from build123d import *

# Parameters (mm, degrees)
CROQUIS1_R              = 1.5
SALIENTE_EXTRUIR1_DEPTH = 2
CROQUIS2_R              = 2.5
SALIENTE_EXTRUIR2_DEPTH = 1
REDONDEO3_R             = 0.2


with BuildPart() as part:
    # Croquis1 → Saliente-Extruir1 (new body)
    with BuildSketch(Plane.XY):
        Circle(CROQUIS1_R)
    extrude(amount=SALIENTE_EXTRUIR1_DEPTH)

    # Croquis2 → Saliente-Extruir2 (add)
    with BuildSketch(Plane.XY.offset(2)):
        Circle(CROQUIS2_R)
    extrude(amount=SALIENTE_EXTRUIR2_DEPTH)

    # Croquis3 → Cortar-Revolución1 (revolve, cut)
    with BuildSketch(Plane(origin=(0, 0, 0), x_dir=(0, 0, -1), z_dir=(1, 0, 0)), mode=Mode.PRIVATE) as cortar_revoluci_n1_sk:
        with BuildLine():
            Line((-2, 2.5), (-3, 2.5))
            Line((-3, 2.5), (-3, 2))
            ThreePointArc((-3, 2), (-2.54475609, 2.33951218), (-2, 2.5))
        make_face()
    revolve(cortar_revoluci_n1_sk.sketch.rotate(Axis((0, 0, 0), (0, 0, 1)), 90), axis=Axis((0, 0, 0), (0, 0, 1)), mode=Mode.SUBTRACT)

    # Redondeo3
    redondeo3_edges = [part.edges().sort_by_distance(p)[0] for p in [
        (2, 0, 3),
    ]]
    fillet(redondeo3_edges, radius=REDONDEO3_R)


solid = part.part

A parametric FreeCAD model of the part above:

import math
import FreeCAD as App
import Part
import Sketcher


def edges_at(feature, points):
    """Names of the edges that pass closest to the given points."""
    edges = feature.Shape.Edges
    near = lambda p: min(range(len(edges)), key=lambda i: edges[i].distToShape(Part.Vertex(*p))[0])
    return sorted({f"Edge{near(p) + 1}" for p in points})

doc = App.newDocument("Part")
body = doc.addObject("PartDesign::Body", "Body")

# Sketch on XY plane
sketch1 = doc.addObject("Sketcher::SketchObject", "Sketch")
body.addObject(sketch1)
sketch1.AttachmentSupport = (doc.XY_Plane, [""])
sketch1.MapMode = "FlatFace"
sketch1.addGeometry(Part.Circle(App.Vector(0, 0, 0), App.Vector(0, 0, 1), 1.5), False)
sketch1.addConstraint([
    Sketcher.Constraint("Coincident", 0, 3, -1, 1),
    Sketcher.Constraint("Diameter", 0, 3.0),
])
pad1 = doc.addObject("PartDesign::Pad", "Pad")
body.addObject(pad1)
pad1.Profile = sketch1
pad1.Length = 2

# Sketch on XY plane
sketch2 = doc.addObject("Sketcher::SketchObject", "Sketch001")
body.addObject(sketch2)
sketch2.AttachmentSupport = (doc.XY_Plane, [""])
sketch2.MapMode = "FlatFace"
sketch2.AttachmentOffset = App.Placement(App.Vector(0, 0, 2), App.Rotation())
sketch2.addGeometry(Part.Circle(App.Vector(0, 0, 0), App.Vector(0, 0, 1), 2.5), False)
sketch2.addConstraint([
    Sketcher.Constraint("Coincident", 0, 3, -1, 1),
    Sketcher.Constraint("Diameter", 0, 5.0),
])
pad2 = doc.addObject("PartDesign::Pad", "Pad001")
body.addObject(pad2)
pad2.Profile = sketch2
pad2.Length = 1

# Sketch on YZ plane
sketch3 = doc.addObject("Sketcher::SketchObject", "Sketch002")
body.addObject(sketch3)
sketch3.AttachmentSupport = (doc.YZ_Plane, [""])
sketch3.MapMode = "FlatFace"
sketch3.addGeometry([
    Part.LineSegment(App.Vector(2.5, 2, 0), App.Vector(2.5, 3, 0)),
    Part.LineSegment(App.Vector(2.5, 3, 0), App.Vector(2, 3, 0)),
    Part.ArcOfCircle(Part.Circle(App.Vector(0.9, 1.8, 0), App.Vector(0, 0, 1), 1.6), math.radians(6), math.radians(47)),
], False)
sketch3.addConstraint([
    Sketcher.Constraint("Coincident", 0, 2, 1, 1),
    Sketcher.Constraint("Coincident", 1, 2, 2, 2),
    Sketcher.Constraint("Coincident", 2, 1, 0, 1),
    Sketcher.Constraint("Vertical", 0),
    Sketcher.Constraint("Horizontal", 1),
    Sketcher.Constraint("DistanceY", 0, 1, 0, 2, 1.0),
    Sketcher.Constraint("DistanceX", 1, 2, 1, 1, 0.5),
    Sketcher.Constraint("DistanceY", -1, 1, 0, 2, 3.0),
    Sketcher.Constraint("DistanceX", -1, 1, 1, 2, 2.0),
    Sketcher.Constraint("Radius", 2, 1.611326),
])
groove = doc.addObject("PartDesign::Groove", "Groove")
body.addObject(groove)
groove.Profile = sketch3
groove.ReferenceAxis = (sketch3, ["V_Axis"])
groove.Angle = 360
doc.recompute()

fillet = doc.addObject("PartDesign::Fillet", "Fillet")
body.addObject(fillet)
fillet.Base = (groove, edges_at(groove, [(2, 0, 3)]))
fillet.Radius = 0.2

doc.recompute()
